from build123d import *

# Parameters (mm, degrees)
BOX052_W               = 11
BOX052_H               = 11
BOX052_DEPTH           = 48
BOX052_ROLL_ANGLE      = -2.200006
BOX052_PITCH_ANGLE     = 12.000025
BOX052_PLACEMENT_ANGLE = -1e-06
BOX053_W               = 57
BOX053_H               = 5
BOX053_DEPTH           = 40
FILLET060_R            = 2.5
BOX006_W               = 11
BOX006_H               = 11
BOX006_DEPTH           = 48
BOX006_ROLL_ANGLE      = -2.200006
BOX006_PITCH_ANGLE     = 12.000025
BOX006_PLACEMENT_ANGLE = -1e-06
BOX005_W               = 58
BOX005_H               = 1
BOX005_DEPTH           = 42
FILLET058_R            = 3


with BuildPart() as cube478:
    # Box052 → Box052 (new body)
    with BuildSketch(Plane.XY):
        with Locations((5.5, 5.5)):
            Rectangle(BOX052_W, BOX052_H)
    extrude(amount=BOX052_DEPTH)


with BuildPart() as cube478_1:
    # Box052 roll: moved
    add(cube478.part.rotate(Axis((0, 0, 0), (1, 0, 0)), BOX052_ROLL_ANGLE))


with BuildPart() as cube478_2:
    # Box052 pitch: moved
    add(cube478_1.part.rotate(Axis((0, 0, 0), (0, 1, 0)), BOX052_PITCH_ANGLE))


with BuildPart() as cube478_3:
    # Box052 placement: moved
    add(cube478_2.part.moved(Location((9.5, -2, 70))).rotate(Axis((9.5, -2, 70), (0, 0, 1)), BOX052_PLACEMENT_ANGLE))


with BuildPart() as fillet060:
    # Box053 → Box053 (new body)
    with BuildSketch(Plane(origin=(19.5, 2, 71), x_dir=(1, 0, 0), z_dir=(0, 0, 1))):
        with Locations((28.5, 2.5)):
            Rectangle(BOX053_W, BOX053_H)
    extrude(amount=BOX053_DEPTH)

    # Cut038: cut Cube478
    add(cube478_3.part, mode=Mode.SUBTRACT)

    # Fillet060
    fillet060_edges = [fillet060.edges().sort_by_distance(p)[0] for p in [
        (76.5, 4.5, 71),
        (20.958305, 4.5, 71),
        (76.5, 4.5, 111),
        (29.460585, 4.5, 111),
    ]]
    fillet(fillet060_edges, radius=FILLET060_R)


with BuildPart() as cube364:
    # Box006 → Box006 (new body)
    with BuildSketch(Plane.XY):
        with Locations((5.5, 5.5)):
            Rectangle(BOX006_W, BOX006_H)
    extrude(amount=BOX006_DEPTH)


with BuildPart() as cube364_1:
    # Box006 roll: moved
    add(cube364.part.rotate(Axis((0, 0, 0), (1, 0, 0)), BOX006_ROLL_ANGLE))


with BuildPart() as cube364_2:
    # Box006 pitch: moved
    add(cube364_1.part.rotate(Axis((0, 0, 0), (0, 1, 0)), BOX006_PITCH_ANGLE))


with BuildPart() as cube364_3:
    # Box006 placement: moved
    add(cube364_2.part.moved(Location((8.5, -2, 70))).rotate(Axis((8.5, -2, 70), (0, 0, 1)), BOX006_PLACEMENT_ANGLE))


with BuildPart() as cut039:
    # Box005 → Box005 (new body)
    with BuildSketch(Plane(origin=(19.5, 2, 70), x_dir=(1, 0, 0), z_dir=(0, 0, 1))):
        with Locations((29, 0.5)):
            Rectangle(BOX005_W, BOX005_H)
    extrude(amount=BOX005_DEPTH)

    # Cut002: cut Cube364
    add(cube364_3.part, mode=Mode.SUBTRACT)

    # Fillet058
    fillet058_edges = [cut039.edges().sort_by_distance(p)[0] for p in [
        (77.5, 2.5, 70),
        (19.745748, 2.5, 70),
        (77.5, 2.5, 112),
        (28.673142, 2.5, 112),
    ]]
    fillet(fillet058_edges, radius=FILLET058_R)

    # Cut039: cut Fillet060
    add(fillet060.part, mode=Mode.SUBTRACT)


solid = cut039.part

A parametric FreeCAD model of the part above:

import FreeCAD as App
import Part
import Sketcher
Q = App.Units.Quantity


def edges_at(feature, points):
    """Names of the edges that pass closest to the given points."""
    edges = feature.Shape.Edges
    near = lambda p: min(range(len(edges)), key=lambda i: edges[i].distToShape(Part.Vertex(*p))[0])
    return sorted({f"Edge{near(p) + 1}" for p in points})

doc = App.newDocument("Part")
body = doc.addObject("PartDesign::Body", "Body")

sketch1 = body.newObject("Sketcher::SketchObject", "Sketch")
sketch1.AttachmentSupport = (doc.getObject("XY_Plane"), [""])
sketch1.MapMode = "FlatFace"
sketch1.addGeometry([
    Part.LineSegment(App.Vector(0, 11, 0), App.Vector(0, 0, 0)),
    Part.LineSegment(App.Vector(0, 0, 0), App.Vector(11, 0, 0)),
    Part.LineSegment(App.Vector(11, 0, 0), App.Vector(11, 11, 0)),
    Part.LineSegment(App.Vector(11, 11, 0), App.Vector(0, 11, 0)),
], False)
sketch1.addConstraint([
    Sketcher.Constraint("Coincident", 0, 2, 1, 1),
    Sketcher.Constraint("Coincident", 1, 2, 2, 1),
    Sketcher.Constraint("Coincident", 2, 2, 3, 1),
    Sketcher.Constraint("Coincident", 3, 2, 0, 1),
    Sketcher.Constraint("Vertical", 0),
    Sketcher.Constraint("Horizontal", 1),
    Sketcher.Constraint("Vertical", 2),
    Sketcher.Constraint("Horizontal", 3),
    Sketcher.Constraint("Coincident", 0, 2, -1, 1),
    Sketcher.Constraint("Equal", 3, 0),
    Sketcher.Constraint("DistanceX", 1, 1, 1, 2, Q("11 mm")),
])
pad1 = body.newObject("PartDesign::Pad", "Pad")
pad1.Profile = sketch1
pad1.Length = 48
body2 = doc.addObject("PartDesign::Body", "Body001")
doc.recompute()

body.Placement = App.Placement(App.Vector(0, 0, 0), App.Rotation(App.Vector(1, 0, 0), 357.799994))
boolean = body2.newObject("PartDesign::Boolean", "Boolean")
boolean.Type = "Fuse"
boolean.addObjects([body])
body3 = doc.addObject("PartDesign::Body", "Body002")
doc.recompute()

body2.Placement = App.Placement(App.Vector(0, 0, 0), App.Rotation(App.Vector(0, 1, 0), 12.000025))
boolean2 = body3.newObject("PartDesign::Boolean", "Boolean001")
boolean2.Type = "Fuse"
boolean2.addObjects([body2])
body4 = doc.addObject("PartDesign::Body", "Body003")
doc.recompute()

body3.Placement = App.Placement(App.Vector(9.5, -2, 70), App.Rotation(App.Vector(0, 0, 1), 0))
boolean3 = body4.newObject("PartDesign::Boolean", "Boolean002")
boolean3.Type = "Fuse"
boolean3.addObjects([body3])
body5 = doc.addObject("PartDesign::Body", "Body004")

sketch2 = body5.newObject("Sketcher::SketchObject", "Sketch001")
sketch2.AttachmentSupport = (doc.getObject("XY_Plane004"), [""])
sketch2.MapMode = "FlatFace"
sketch2.AttachmentOffset = App.Placement(App.Vector(0, 0, 71), App.Rotation())
sketch2.addGeometry([
    Part.LineSegment(App.Vector(19.5, 7, 0), App.Vector(19.5, 2, 0)),
    Part.LineSegment(App.Vector(19.5, 2, 0), App.Vector(76.5, 2, 0)),
    Part.LineSegment(App.Vector(76.5, 2, 0), App.Vector(76.5, 7, 0)),
    Part.LineSegment(App.Vector(76.5, 7, 0), App.Vector(19.5, 7, 0)),
], False)
sketch2.addConstraint([
    Sketcher.Constraint("Coincident", 0, 2, 1, 1),
    Sketcher.Constraint("Coincident", 1, 2, 2, 1),
    Sketcher.Constraint("Coincident", 2, 2, 3, 1),
    Sketcher.Constraint("Coincident", 3, 2, 0, 1),
    Sketcher.Constraint("Vertical", 0),
    Sketcher.Constraint("Horizontal", 1),
    Sketcher.Constraint("Vertical", 2),
    Sketcher.Constraint("Horizontal", 3),
    Sketcher.Constraint("DistanceX", 1, 1, 1, 2, Q("57 mm")),
    Sketcher.Constraint("DistanceY", 0, 2, 0, 1, Q("5 mm")),
    Sketcher.Constraint("DistanceY", -1, 1, 0, 2, Q("2 mm")),
    Sketcher.Constraint("DistanceX", -1, 1, 0, 2, Q("19.5 mm")),
])
pad2 = body5.newObject("PartDesign::Pad", "Pad001")
pad2.Profile = sketch2
pad2.Length = 40
doc.recompute()

boolean4 = body5.newObject("PartDesign::Boolean", "Boolean003")
boolean4.Type = "Cut"
boolean4.addObjects([body4])
doc.recompute()

fillet = body5.newObject("PartDesign::Fillet", "Fillet")
fillet.Base = (boolean4, edges_at(boolean4, [
    (76.5, 4.5, 71),
    (20.958, 4.5, 71),
    (76.5, 4.5, 111),
    (29.461, 4.5, 111),
]))
fillet.Radius = 2.5
body6 = doc.addObject("PartDesign::Body", "Body005")

sketch3 = body6.newObject("Sketcher::SketchObject", "Sketch002")
sketch3.AttachmentSupport = (doc.getObject("XY_Plane005"), [""])
sketch3.MapMode = "FlatFace"
sketch3.addGeometry([
    Part.LineSegment(App.Vector(0, 11, 0), App.Vector(0, 0, 0)),
    Part.LineSegment(App.Vector(0, 0, 0), App.Vector(11, 0, 0)),
    Part.LineSegment(App.Vector(11, 0, 0), App.Vector(11, 11, 0)),
    Part.LineSegment(App.Vector(11, 11, 0), App.Vector(0, 11, 0)),
], False)
sketch3.addConstraint([
    Sketcher.Constraint("Coincident", 0, 2, 1, 1),
    Sketcher.Constraint("Coincident", 1, 2, 2, 1),
    Sketcher.Constraint("Coincident", 2, 2, 3, 1),
    Sketcher.Constraint("Coincident", 3, 2, 0, 1),
    Sketcher.Constraint("Vertical", 0),
    Sketcher.Constraint("Horizontal", 1),
    Sketcher.Constraint("Vertical", 2),
    Sketcher.Constraint("Horizontal", 3),
    Sketcher.Constraint("Coincident", 0, 2, -1, 1),
    Sketcher.Constraint("Equal", 3, 0),
    Sketcher.Constraint("DistanceX", 1, 1, 1, 2, Q("11 mm")),
])
pad3 = body6.newObject("PartDesign::Pad", "Pad002")
pad3.Profile = sketch3
pad3.Length = 48
body7 = doc.addObject("PartDesign::Body", "Body006")
doc.recompute()

body6.Placement = App.Placement(App.Vector(0, 0, 0), App.Rotation(App.Vector(1, 0, 0), 357.799994))
boolean5 = body7.newObject("PartDesign::Boolean", "Boolean004")
boolean5.Type = "Fuse"
boolean5.addObjects([body6])
body8 = doc.addObject("PartDesign::Body", "Body007")
doc.recompute()

body7.Placement = App.Placement(App.Vector(0, 0, 0), App.Rotation(App.Vector(0, 1, 0), 12.000025))
boolean6 = body8.newObject("PartDesign::Boolean", "Boolean005")
boolean6.Type = "Fuse"
boolean6.addObjects([body7])
body9 = doc.addObject("PartDesign::Body", "Body008")
doc.recompute()

body8.Placement = App.Placement(App.Vector(8.5, -2, 70), App.Rotation(App.Vector(0, 0, 1), 0))
boolean7 = body9.newObject("PartDesign::Boolean", "Boolean006")
boolean7.Type = "Fuse"
boolean7.addObjects([body8])
body10 = doc.addObject("PartDesign::Body", "Body009")

sketch4 = body10.newObject("Sketcher::SketchObject", "Sketch003")
sketch4.AttachmentSupport = (doc.getObject("XY_Plane009"), [""])
sketch4.MapMode = "FlatFace"
sketch4.AttachmentOffset = App.Placement(App.Vector(0, 0, 70), App.Rotation())
sketch4.addGeometry([
    Part.LineSegment(App.Vector(19.5, 3, 0), App.Vector(19.5, 2, 0)),
    Part.LineSegment(App.Vector(19.5, 2, 0), App.Vector(77.5, 2, 0)),
    Part.LineSegment(App.Vector(77.5, 2, 0), App.Vector(77.5, 3, 0)),
    Part.LineSegment(App.Vector(77.5, 3, 0), App.Vector(19.5, 3, 0)),
], False)
sketch4.addConstraint([
    Sketcher.Constraint("Coincident", 0, 2, 1, 1),
    Sketcher.Constraint("Coincident", 1, 2, 2, 1),
    Sketcher.Constraint("Coincident", 2, 2, 3, 1),
    Sketcher.Constraint("Coincident", 3, 2, 0, 1),
    Sketcher.Constraint("Vertical", 0),
    Sketcher.Constraint("Horizontal", 1),
    Sketcher.Constraint("Vertical", 2),
    Sketcher.Constraint("Horizontal", 3),
    Sketcher.Constraint("DistanceX", 1, 1, 1, 2, Q("58 mm")),
    Sketcher.Constraint("DistanceY", 0, 2, 0, 1, Q("1 mm")),
    Sketcher.Constraint("DistanceY", -1, 1, 0, 2, Q("2 mm")),
    Sketcher.Constraint("DistanceX", -1, 1, 0, 2, Q("19.5 mm")),
])
pad4 = body10.newObject("PartDesign::Pad", "Pad003")
pad4.Profile = sketch4
pad4.Length = 42
doc.recompute()

boolean8 = body10.newObject("PartDesign::Boolean", "Boolean007")
boolean8.Type = "Cut"
boolean8.addObjects([body9])
doc.recompute()

fillet2 = body10.newObject("PartDesign::Fillet", "Fillet001")
fillet2.Base = (boolean8, edges_at(boolean8, [
    (77.5, 2.5, 70),
    (19.746, 2.5, 70),
    (77.5, 2.5, 112),
    (28.673, 2.5, 112),
]))
fillet2.Radius = 3
doc.recompute()

boolean9 = body10.newObject("PartDesign::Boolean", "Boolean008")
boolean9.Type = "Cut"
boolean9.addObjects([body5])

doc.recompute()
